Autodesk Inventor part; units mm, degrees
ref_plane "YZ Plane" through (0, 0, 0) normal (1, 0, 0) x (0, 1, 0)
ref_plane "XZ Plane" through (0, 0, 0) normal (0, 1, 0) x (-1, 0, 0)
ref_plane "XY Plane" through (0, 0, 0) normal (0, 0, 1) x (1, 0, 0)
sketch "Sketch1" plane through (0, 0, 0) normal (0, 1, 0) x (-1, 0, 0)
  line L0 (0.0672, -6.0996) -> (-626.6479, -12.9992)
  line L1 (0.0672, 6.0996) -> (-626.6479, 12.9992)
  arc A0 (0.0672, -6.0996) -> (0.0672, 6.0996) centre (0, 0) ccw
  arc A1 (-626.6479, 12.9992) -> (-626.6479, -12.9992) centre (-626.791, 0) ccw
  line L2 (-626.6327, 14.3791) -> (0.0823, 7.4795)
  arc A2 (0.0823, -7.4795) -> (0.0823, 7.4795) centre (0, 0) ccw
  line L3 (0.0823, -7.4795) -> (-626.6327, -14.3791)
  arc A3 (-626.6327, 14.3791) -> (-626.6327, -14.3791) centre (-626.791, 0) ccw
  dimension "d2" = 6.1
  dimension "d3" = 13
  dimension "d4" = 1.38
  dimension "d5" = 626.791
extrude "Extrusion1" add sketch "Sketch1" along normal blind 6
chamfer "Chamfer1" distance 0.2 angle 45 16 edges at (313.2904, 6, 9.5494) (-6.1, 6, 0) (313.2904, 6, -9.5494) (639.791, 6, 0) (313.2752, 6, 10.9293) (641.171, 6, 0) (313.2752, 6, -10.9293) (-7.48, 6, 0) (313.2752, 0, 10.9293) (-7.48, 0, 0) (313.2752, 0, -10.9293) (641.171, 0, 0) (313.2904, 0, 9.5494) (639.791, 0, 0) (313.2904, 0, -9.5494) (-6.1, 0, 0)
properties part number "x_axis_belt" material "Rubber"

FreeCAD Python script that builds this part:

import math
import FreeCAD as App
import Part
import Sketcher
from FreeCAD import Vector


def edges_at(feature, points):
    """Names of the edges that pass closest to the given points."""
    edges = feature.Shape.Edges
    near = lambda p: min(range(len(edges)), key=lambda i: edges[i].distToShape(Part.Vertex(*p))[0])
    return sorted({f"Edge{near(p) + 1}" for p in points})

doc = App.newDocument("Part")
body = doc.addObject("PartDesign::Body", "Body")

sketch1 = doc.addObject("Sketcher::SketchObject", "Sketch")
body.addObject(sketch1)
sketch1.AttachmentSupport = (doc.XZ_Plane, [""])
sketch1.MapMode = "FlatFace"
sketch1.addGeometry(Part.LineSegment(Vector(0, 7, 0), Vector(627, 14, 0)), False)
sketch1.addGeometry(Part.ArcOfCircle(Part.Circle(Vector(627, 0, 0), Vector(0, 0, 1), 14), math.radians(-91), math.radians(91)), False)
sketch1.addGeometry(Part.LineSegment(Vector(627, -14, 0), Vector(0, -7, 0)), False)
sketch1.addGeometry(Part.ArcOfCircle(Part.Circle(Vector(0, 0, 0), Vector(0, 0, 1), 7), math.radians(91), math.radians(269)), False)
sketch1.addGeometry(Part.ArcOfCircle(Part.Circle(Vector(0, 0, 0), Vector(0, 0, 1), 6), math.radians(91), math.radians(269)), False)
sketch1.addGeometry(Part.LineSegment(Vector(0, -6, 0), Vector(627, -13, 0)), False)
sketch1.addGeometry(Part.ArcOfCircle(Part.Circle(Vector(627, 0, 0), Vector(0, 0, 1), 13), math.radians(-91), math.radians(91)), False)
sketch1.addGeometry(Part.LineSegment(Vector(627, 13, 0), Vector(0, 6, 0)), False)
sketch1.addConstraint(Sketcher.Constraint("Tangent", 0, 2, 1, 2))
sketch1.addConstraint(Sketcher.Constraint("Tangent", 1, 1, 2, 1))
sketch1.addConstraint(Sketcher.Constraint("Tangent", 2, 2, 3, 2))
sketch1.addConstraint(Sketcher.Constraint("Tangent", 3, 1, 0, 1))
sketch1.addConstraint(Sketcher.Constraint("Tangent", 4, 2, 5, 1))
sketch1.addConstraint(Sketcher.Constraint("Tangent", 5, 2, 6, 1))
sketch1.addConstraint(Sketcher.Constraint("Tangent", 6, 2, 7, 1))
sketch1.addConstraint(Sketcher.Constraint("Tangent", 7, 2, 4, 1))
sketch1.addConstraint(Sketcher.Constraint("Coincident", 3, 3, -1, 1))
sketch1.addConstraint(Sketcher.Constraint("Coincident", 4, 3, -1, 1))
sketch1.addConstraint(Sketcher.Constraint("Coincident", 6, 3, 1, 3))
sketch1.addConstraint(Sketcher.Constraint("PointOnObject", 1, 3, -1))
sketch1.addConstraint(Sketcher.Constraint("Parallel", 2, 5))
sketch1.addConstraint(Sketcher.Constraint("Radius", 6, 13.0))
sketch1.addConstraint(Sketcher.Constraint("Radius", 4, 6.1))
sketch1.addConstraint(Sketcher.Constraint("Radius", 1, 14.38))
sketch1.addConstraint(Sketcher.Constraint("DistanceX", -1, 1, 1, 3, 626.791))
pad1 = doc.addObject("PartDesign::Pad", "Pad")
body.addObject(pad1)
pad1.Profile = sketch1
pad1.Length = 6
pad1.Reversed = True
doc.recompute()

chamfer = doc.addObject("PartDesign::Chamfer", "Chamfer")
body.addObject(chamfer)
chamfer.Base = (pad1, edges_at(pad1, [
    (313.29, 6, 9.549),
    (-6.1, 6, 0),
    (313.29, 6, -9.549),
    (639.791, 6, 0),
    (313.275, 6, 10.929),
    (641.171, 6, 0),
    (313.275, 6, -10.929),
    (-7.48, 6, 0),
    (313.275, 0, 10.929),
    (-7.48, 0, 0),
    (313.275, 0, -10.929),
    (641.171, 0, 0),
    (313.29, 0, 9.549),
    (639.791, 0, 0),
    (313.29, 0, -9.549),
    (-6.1, 0, 0),
]))
chamfer.Size = 0.2

doc.recompute()
